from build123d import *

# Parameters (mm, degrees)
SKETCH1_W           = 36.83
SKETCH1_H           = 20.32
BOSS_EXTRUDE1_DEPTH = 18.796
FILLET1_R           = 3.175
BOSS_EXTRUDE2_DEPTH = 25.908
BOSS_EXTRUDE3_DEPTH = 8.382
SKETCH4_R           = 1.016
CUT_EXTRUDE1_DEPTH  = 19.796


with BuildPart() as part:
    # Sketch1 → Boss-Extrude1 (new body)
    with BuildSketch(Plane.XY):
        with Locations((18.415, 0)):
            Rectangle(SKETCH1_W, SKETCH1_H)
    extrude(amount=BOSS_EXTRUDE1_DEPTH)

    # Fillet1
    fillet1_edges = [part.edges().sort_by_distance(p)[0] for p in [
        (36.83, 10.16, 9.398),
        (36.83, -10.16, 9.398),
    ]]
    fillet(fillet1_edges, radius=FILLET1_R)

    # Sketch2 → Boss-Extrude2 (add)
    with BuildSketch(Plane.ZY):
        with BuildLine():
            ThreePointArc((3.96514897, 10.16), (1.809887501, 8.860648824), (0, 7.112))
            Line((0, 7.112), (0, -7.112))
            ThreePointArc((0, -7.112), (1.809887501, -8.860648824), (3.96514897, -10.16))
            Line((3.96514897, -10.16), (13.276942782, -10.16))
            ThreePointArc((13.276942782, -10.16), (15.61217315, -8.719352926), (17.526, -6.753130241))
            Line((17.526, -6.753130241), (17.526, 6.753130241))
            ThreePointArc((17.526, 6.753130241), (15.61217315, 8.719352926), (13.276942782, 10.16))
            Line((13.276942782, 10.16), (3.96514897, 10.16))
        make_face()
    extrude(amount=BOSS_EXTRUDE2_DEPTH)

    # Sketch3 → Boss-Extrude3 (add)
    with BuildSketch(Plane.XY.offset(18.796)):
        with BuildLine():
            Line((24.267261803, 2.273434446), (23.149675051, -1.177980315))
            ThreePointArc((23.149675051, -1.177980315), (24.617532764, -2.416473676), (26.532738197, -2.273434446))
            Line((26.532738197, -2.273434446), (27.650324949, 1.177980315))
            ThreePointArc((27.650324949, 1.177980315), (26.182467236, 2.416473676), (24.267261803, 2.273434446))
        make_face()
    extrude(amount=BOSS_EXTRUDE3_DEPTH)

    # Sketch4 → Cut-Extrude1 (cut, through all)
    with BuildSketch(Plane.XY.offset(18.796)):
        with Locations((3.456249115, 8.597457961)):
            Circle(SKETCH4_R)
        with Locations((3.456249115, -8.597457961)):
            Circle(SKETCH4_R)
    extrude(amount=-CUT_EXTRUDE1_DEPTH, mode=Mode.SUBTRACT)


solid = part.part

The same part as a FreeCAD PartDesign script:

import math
import FreeCAD as App
import Part
import Sketcher
Q = App.Units.Quantity


def edges_at(feature, points):
    """Names of the edges that pass closest to the given points."""
    edges = feature.Shape.Edges
    near = lambda p: min(range(len(edges)), key=lambda i: edges[i].distToShape(Part.Vertex(*p))[0])
    return sorted({f"Edge{near(p) + 1}" for p in points})


def add_polygon(sketch, points):
    """Adds a closed chain of lines whose ends are joined by coincident constraints."""
    first, n = sketch.GeometryCount, len(points)
    for a, b in zip(points, points[1:] + points[:1]):
        sketch.addGeometry(Part.LineSegment(App.Vector(*a, 0), App.Vector(*b, 0)), False)
    for i in range(n):
        sketch.addConstraint(Sketcher.Constraint("Coincident", first + i, 2, first + (i + 1) % n, 1))

doc = App.newDocument("Part")
body = doc.addObject("PartDesign::Body", "Body")

sketch1 = body.newObject("Sketcher::SketchObject", "Sketch")
sketch1.AttachmentSupport = (doc.getObject("XY_Plane"), [""])
sketch1.MapMode = "FlatFace"
add_polygon(sketch1, [(0, 10), (0, -10), (37, -10), (37, 10)])
sketch1.addConstraint(Sketcher.Constraint("Vertical", 0))
sketch1.addConstraint(Sketcher.Constraint("Horizontal", 1))
sketch1.addConstraint(Sketcher.Constraint("Vertical", 2))
sketch1.addConstraint(Sketcher.Constraint("Horizontal", 3))
sketch1.addConstraint(Sketcher.Constraint("Symmetric", 0, 2, 3, 2, -1, 1))
sketch1.addConstraint(Sketcher.Constraint("DistanceY", 0, 2, 0, 1, Q("0.8 in")))
sketch1.addConstraint(Sketcher.Constraint("DistanceX", 1, 1, 1, 2, Q("1.45 in")))
pad1 = body.newObject("PartDesign::Pad", "Pad")
pad1.Profile = sketch1
pad1.Length = Q("0.74 in")
doc.recompute()

fillet = body.newObject("PartDesign::Fillet", "Fillet")
fillet.Base = (pad1, edges_at(pad1, [(36.83, 10.16, 9.398), (36.83, -10.16, 9.398)]))
fillet.Radius = Q("0.125 in")

sketch2 = body.newObject("Sketcher::SketchObject", "Sketch001")
sketch2.AttachmentSupport = (doc.getObject("YZ_Plane"), [""])
sketch2.MapMode = "FlatFace"
sketch2.addGeometry(Part.ArcOfCircle(Part.Circle(App.Vector(0, 9, 0), App.Vector(0, 0, 1), 11), math.radians(-50), math.radians(-25)), False)
sketch2.addGeometry(Part.LineSegment(App.Vector(7, 0, 0), App.Vector(-7, 0, 0)), False)
sketch2.addGeometry(Part.ArcOfCircle(Part.Circle(App.Vector(0, 9, 0), App.Vector(0, 0, 1), 11), math.radians(-155), math.radians(-130)), False)
sketch2.addGeometry(Part.LineSegment(App.Vector(-10, 4, 0), App.Vector(-10, 13, 0)), False)
sketch2.addGeometry(Part.ArcOfCircle(Part.Circle(App.Vector(0, 9, 0), App.Vector(0, 0, 1), 11), math.radians(127), math.radians(155)), False)
sketch2.addGeometry(Part.LineSegment(App.Vector(-7, 18, 0), App.Vector(7, 18, 0)), False)
sketch2.addGeometry(Part.ArcOfCircle(Part.Circle(App.Vector(0, 9, 0), App.Vector(0, 0, 1), 11), math.radians(25), math.radians(53)), False)
sketch2.addGeometry(Part.LineSegment(App.Vector(10, 13, 0), App.Vector(10, 4, 0)), False)
sketch2.addConstraint(Sketcher.Constraint("Coincident", 0, 1, 1, 1))
sketch2.addConstraint(Sketcher.Constraint("Coincident", 1, 2, 2, 2))
sketch2.addConstraint(Sketcher.Constraint("Coincident", 2, 1, 3, 1))
sketch2.addConstraint(Sketcher.Constraint("Coincident", 3, 2, 4, 2))
sketch2.addConstraint(Sketcher.Constraint("Coincident", 4, 1, 5, 1))
sketch2.addConstraint(Sketcher.Constraint("Coincident", 5, 2, 6, 2))
sketch2.addConstraint(Sketcher.Constraint("Coincident", 6, 1, 7, 1))
sketch2.addConstraint(Sketcher.Constraint("Coincident", 7, 2, 0, 2))
sketch2.addConstraint(Sketcher.Constraint("Horizontal", 1))
sketch2.addConstraint(Sketcher.Constraint("Vertical", 3))
sketch2.addConstraint(Sketcher.Constraint("Horizontal", 5))
sketch2.addConstraint(Sketcher.Constraint("Vertical", 7))
sketch2.addConstraint(Sketcher.Constraint("Coincident", 2, 3, 0, 3))
sketch2.addConstraint(Sketcher.Constraint("Coincident", 4, 3, 0, 3))
sketch2.addConstraint(Sketcher.Constraint("Coincident", 6, 3, 0, 3))
sketch2.addConstraint(Sketcher.Constraint("Equal", 0, 2))
sketch2.addConstraint(Sketcher.Constraint("Equal", 2, 4))
sketch2.addConstraint(Sketcher.Constraint("Equal", 4, 6))
sketch2.addConstraint(Sketcher.Constraint("Symmetric", 0, 1, 1, 2, -1, 1))
sketch2.addConstraint(Sketcher.Constraint("Horizontal", 3, 2, 6, 1))
sketch2.addConstraint(Sketcher.Constraint("Radius", 0, Q("0.44 in")))
sketch2.addConstraint(Sketcher.Constraint("DistanceX", 1, 2, 1, 1, Q("0.56 in")))
sketch2.addConstraint(Sketcher.Constraint("DistanceX", 2, 1, -1, 1, Q("0.4 in")))
sketch2.addConstraint(Sketcher.Constraint("DistanceY", -1, 1, 4, 1, Q("0.69 in")))
pad2 = body.newObject("PartDesign::Pad", "Pad001")
pad2.Profile = sketch2
pad2.Length = Q("1.02 in")
pad2.Reversed = True

sketch3 = body.newObject("Sketcher::SketchObject", "Sketch002")
sketch3.AttachmentSupport = (doc.getObject("XY_Plane"), [""])
sketch3.MapMode = "FlatFace"
sketch3.AttachmentOffset = App.Placement(App.Vector(0, 0, 0.74 * 25.4), App.Rotation())
sketch3.addGeometry(Part.LineSegment(App.Vector(24.3, 2.3, 0), App.Vector(23.1, -1.2, 0)), False)
sketch3.addGeometry(Part.ArcOfCircle(Part.Circle(App.Vector(25.4, 0, 0), App.Vector(0, 0, 1), 2.5), math.radians(-152), math.radians(-64)), False)
sketch3.addGeometry(Part.LineSegment(App.Vector(26.5, -2.3, 0), App.Vector(27.7, 1.2, 0)), False)
sketch3.addGeometry(Part.ArcOfCircle(Part.Circle(App.Vector(25.4, 0, 0), App.Vector(0, 0, 1), 2.5), math.radians(28), math.radians(116)), False)
sketch3.addConstraint(Sketcher.Constraint("Coincident", 0, 2, 1, 1))
sketch3.addConstraint(Sketcher.Constraint("Coincident", 1, 2, 2, 1))
sketch3.addConstraint(Sketcher.Constraint("Coincident", 2, 2, 3, 1))
sketch3.addConstraint(Sketcher.Constraint("Coincident", 3, 2, 0, 1))
sketch3.addConstraint(Sketcher.Constraint("Coincident", 3, 3, 1, 3))
sketch3.addConstraint(Sketcher.Constraint("Equal", 1, 3))
sketch3.addConstraint(Sketcher.Constraint("PointOnObject", 1, 3, -1))
sketch3.addConstraint(Sketcher.Constraint("Parallel", 0, 2))
sketch3.addConstraint(Sketcher.Constraint("Equal", 0, 2))
sketch3.addConstraint(Sketcher.Constraint("Radius", 1, Q("0.1 in")))
sketch3.addConstraint(Sketcher.Constraint("DistanceX", -1, 1, 1, 3, Q("1 in")))
sketch3.addConstraint(Sketcher.Constraint("DistanceY", 0, 2, -1, 1, 1.17798))
sketch3.addConstraint(Sketcher.Constraint("DistanceX", -1, 1, 1, 2, 26.532738))
pad3 = body.newObject("PartDesign::Pad", "Pad002")
pad3.Profile = sketch3
pad3.Length = Q("0.33 in")

sketch4 = body.newObject("Sketcher::SketchObject", "Sketch003")
sketch4.AttachmentSupport = (doc.getObject("XY_Plane"), [""])
sketch4.MapMode = "FlatFace"
sketch4.AttachmentOffset = App.Placement(App.Vector(0, 0, 0.74 * 25.4), App.Rotation())
sketch4.addGeometry(Part.Circle(App.Vector(3.5, 8.6, 0), App.Vector(0, 0, 1), 1), False)
sketch4.addGeometry(Part.Circle(App.Vector(3.5, -8.6, 0), App.Vector(0, 0, 1), 1), False)
sketch4.addConstraint(Sketcher.Constraint("Equal", 0, 1))
sketch4.addConstraint(Sketcher.Constraint("Symmetric", 0, 3, 1, 3, -1))
sketch4.addConstraint(Sketcher.Constraint("Diameter", 0, Q("0.08 in")))
sketch4.addConstraint(Sketcher.Constraint("DistanceX", -1, 1, 0, 3, 3.456249))
sketch4.addConstraint(Sketcher.Constraint("DistanceY", -1, 1, 0, 3, 8.597458))
pocket1 = body.newObject("PartDesign::Pocket", "Pocket")
pocket1.Profile = sketch4
pocket1.Type = "ThroughAll"

doc.recompute()
